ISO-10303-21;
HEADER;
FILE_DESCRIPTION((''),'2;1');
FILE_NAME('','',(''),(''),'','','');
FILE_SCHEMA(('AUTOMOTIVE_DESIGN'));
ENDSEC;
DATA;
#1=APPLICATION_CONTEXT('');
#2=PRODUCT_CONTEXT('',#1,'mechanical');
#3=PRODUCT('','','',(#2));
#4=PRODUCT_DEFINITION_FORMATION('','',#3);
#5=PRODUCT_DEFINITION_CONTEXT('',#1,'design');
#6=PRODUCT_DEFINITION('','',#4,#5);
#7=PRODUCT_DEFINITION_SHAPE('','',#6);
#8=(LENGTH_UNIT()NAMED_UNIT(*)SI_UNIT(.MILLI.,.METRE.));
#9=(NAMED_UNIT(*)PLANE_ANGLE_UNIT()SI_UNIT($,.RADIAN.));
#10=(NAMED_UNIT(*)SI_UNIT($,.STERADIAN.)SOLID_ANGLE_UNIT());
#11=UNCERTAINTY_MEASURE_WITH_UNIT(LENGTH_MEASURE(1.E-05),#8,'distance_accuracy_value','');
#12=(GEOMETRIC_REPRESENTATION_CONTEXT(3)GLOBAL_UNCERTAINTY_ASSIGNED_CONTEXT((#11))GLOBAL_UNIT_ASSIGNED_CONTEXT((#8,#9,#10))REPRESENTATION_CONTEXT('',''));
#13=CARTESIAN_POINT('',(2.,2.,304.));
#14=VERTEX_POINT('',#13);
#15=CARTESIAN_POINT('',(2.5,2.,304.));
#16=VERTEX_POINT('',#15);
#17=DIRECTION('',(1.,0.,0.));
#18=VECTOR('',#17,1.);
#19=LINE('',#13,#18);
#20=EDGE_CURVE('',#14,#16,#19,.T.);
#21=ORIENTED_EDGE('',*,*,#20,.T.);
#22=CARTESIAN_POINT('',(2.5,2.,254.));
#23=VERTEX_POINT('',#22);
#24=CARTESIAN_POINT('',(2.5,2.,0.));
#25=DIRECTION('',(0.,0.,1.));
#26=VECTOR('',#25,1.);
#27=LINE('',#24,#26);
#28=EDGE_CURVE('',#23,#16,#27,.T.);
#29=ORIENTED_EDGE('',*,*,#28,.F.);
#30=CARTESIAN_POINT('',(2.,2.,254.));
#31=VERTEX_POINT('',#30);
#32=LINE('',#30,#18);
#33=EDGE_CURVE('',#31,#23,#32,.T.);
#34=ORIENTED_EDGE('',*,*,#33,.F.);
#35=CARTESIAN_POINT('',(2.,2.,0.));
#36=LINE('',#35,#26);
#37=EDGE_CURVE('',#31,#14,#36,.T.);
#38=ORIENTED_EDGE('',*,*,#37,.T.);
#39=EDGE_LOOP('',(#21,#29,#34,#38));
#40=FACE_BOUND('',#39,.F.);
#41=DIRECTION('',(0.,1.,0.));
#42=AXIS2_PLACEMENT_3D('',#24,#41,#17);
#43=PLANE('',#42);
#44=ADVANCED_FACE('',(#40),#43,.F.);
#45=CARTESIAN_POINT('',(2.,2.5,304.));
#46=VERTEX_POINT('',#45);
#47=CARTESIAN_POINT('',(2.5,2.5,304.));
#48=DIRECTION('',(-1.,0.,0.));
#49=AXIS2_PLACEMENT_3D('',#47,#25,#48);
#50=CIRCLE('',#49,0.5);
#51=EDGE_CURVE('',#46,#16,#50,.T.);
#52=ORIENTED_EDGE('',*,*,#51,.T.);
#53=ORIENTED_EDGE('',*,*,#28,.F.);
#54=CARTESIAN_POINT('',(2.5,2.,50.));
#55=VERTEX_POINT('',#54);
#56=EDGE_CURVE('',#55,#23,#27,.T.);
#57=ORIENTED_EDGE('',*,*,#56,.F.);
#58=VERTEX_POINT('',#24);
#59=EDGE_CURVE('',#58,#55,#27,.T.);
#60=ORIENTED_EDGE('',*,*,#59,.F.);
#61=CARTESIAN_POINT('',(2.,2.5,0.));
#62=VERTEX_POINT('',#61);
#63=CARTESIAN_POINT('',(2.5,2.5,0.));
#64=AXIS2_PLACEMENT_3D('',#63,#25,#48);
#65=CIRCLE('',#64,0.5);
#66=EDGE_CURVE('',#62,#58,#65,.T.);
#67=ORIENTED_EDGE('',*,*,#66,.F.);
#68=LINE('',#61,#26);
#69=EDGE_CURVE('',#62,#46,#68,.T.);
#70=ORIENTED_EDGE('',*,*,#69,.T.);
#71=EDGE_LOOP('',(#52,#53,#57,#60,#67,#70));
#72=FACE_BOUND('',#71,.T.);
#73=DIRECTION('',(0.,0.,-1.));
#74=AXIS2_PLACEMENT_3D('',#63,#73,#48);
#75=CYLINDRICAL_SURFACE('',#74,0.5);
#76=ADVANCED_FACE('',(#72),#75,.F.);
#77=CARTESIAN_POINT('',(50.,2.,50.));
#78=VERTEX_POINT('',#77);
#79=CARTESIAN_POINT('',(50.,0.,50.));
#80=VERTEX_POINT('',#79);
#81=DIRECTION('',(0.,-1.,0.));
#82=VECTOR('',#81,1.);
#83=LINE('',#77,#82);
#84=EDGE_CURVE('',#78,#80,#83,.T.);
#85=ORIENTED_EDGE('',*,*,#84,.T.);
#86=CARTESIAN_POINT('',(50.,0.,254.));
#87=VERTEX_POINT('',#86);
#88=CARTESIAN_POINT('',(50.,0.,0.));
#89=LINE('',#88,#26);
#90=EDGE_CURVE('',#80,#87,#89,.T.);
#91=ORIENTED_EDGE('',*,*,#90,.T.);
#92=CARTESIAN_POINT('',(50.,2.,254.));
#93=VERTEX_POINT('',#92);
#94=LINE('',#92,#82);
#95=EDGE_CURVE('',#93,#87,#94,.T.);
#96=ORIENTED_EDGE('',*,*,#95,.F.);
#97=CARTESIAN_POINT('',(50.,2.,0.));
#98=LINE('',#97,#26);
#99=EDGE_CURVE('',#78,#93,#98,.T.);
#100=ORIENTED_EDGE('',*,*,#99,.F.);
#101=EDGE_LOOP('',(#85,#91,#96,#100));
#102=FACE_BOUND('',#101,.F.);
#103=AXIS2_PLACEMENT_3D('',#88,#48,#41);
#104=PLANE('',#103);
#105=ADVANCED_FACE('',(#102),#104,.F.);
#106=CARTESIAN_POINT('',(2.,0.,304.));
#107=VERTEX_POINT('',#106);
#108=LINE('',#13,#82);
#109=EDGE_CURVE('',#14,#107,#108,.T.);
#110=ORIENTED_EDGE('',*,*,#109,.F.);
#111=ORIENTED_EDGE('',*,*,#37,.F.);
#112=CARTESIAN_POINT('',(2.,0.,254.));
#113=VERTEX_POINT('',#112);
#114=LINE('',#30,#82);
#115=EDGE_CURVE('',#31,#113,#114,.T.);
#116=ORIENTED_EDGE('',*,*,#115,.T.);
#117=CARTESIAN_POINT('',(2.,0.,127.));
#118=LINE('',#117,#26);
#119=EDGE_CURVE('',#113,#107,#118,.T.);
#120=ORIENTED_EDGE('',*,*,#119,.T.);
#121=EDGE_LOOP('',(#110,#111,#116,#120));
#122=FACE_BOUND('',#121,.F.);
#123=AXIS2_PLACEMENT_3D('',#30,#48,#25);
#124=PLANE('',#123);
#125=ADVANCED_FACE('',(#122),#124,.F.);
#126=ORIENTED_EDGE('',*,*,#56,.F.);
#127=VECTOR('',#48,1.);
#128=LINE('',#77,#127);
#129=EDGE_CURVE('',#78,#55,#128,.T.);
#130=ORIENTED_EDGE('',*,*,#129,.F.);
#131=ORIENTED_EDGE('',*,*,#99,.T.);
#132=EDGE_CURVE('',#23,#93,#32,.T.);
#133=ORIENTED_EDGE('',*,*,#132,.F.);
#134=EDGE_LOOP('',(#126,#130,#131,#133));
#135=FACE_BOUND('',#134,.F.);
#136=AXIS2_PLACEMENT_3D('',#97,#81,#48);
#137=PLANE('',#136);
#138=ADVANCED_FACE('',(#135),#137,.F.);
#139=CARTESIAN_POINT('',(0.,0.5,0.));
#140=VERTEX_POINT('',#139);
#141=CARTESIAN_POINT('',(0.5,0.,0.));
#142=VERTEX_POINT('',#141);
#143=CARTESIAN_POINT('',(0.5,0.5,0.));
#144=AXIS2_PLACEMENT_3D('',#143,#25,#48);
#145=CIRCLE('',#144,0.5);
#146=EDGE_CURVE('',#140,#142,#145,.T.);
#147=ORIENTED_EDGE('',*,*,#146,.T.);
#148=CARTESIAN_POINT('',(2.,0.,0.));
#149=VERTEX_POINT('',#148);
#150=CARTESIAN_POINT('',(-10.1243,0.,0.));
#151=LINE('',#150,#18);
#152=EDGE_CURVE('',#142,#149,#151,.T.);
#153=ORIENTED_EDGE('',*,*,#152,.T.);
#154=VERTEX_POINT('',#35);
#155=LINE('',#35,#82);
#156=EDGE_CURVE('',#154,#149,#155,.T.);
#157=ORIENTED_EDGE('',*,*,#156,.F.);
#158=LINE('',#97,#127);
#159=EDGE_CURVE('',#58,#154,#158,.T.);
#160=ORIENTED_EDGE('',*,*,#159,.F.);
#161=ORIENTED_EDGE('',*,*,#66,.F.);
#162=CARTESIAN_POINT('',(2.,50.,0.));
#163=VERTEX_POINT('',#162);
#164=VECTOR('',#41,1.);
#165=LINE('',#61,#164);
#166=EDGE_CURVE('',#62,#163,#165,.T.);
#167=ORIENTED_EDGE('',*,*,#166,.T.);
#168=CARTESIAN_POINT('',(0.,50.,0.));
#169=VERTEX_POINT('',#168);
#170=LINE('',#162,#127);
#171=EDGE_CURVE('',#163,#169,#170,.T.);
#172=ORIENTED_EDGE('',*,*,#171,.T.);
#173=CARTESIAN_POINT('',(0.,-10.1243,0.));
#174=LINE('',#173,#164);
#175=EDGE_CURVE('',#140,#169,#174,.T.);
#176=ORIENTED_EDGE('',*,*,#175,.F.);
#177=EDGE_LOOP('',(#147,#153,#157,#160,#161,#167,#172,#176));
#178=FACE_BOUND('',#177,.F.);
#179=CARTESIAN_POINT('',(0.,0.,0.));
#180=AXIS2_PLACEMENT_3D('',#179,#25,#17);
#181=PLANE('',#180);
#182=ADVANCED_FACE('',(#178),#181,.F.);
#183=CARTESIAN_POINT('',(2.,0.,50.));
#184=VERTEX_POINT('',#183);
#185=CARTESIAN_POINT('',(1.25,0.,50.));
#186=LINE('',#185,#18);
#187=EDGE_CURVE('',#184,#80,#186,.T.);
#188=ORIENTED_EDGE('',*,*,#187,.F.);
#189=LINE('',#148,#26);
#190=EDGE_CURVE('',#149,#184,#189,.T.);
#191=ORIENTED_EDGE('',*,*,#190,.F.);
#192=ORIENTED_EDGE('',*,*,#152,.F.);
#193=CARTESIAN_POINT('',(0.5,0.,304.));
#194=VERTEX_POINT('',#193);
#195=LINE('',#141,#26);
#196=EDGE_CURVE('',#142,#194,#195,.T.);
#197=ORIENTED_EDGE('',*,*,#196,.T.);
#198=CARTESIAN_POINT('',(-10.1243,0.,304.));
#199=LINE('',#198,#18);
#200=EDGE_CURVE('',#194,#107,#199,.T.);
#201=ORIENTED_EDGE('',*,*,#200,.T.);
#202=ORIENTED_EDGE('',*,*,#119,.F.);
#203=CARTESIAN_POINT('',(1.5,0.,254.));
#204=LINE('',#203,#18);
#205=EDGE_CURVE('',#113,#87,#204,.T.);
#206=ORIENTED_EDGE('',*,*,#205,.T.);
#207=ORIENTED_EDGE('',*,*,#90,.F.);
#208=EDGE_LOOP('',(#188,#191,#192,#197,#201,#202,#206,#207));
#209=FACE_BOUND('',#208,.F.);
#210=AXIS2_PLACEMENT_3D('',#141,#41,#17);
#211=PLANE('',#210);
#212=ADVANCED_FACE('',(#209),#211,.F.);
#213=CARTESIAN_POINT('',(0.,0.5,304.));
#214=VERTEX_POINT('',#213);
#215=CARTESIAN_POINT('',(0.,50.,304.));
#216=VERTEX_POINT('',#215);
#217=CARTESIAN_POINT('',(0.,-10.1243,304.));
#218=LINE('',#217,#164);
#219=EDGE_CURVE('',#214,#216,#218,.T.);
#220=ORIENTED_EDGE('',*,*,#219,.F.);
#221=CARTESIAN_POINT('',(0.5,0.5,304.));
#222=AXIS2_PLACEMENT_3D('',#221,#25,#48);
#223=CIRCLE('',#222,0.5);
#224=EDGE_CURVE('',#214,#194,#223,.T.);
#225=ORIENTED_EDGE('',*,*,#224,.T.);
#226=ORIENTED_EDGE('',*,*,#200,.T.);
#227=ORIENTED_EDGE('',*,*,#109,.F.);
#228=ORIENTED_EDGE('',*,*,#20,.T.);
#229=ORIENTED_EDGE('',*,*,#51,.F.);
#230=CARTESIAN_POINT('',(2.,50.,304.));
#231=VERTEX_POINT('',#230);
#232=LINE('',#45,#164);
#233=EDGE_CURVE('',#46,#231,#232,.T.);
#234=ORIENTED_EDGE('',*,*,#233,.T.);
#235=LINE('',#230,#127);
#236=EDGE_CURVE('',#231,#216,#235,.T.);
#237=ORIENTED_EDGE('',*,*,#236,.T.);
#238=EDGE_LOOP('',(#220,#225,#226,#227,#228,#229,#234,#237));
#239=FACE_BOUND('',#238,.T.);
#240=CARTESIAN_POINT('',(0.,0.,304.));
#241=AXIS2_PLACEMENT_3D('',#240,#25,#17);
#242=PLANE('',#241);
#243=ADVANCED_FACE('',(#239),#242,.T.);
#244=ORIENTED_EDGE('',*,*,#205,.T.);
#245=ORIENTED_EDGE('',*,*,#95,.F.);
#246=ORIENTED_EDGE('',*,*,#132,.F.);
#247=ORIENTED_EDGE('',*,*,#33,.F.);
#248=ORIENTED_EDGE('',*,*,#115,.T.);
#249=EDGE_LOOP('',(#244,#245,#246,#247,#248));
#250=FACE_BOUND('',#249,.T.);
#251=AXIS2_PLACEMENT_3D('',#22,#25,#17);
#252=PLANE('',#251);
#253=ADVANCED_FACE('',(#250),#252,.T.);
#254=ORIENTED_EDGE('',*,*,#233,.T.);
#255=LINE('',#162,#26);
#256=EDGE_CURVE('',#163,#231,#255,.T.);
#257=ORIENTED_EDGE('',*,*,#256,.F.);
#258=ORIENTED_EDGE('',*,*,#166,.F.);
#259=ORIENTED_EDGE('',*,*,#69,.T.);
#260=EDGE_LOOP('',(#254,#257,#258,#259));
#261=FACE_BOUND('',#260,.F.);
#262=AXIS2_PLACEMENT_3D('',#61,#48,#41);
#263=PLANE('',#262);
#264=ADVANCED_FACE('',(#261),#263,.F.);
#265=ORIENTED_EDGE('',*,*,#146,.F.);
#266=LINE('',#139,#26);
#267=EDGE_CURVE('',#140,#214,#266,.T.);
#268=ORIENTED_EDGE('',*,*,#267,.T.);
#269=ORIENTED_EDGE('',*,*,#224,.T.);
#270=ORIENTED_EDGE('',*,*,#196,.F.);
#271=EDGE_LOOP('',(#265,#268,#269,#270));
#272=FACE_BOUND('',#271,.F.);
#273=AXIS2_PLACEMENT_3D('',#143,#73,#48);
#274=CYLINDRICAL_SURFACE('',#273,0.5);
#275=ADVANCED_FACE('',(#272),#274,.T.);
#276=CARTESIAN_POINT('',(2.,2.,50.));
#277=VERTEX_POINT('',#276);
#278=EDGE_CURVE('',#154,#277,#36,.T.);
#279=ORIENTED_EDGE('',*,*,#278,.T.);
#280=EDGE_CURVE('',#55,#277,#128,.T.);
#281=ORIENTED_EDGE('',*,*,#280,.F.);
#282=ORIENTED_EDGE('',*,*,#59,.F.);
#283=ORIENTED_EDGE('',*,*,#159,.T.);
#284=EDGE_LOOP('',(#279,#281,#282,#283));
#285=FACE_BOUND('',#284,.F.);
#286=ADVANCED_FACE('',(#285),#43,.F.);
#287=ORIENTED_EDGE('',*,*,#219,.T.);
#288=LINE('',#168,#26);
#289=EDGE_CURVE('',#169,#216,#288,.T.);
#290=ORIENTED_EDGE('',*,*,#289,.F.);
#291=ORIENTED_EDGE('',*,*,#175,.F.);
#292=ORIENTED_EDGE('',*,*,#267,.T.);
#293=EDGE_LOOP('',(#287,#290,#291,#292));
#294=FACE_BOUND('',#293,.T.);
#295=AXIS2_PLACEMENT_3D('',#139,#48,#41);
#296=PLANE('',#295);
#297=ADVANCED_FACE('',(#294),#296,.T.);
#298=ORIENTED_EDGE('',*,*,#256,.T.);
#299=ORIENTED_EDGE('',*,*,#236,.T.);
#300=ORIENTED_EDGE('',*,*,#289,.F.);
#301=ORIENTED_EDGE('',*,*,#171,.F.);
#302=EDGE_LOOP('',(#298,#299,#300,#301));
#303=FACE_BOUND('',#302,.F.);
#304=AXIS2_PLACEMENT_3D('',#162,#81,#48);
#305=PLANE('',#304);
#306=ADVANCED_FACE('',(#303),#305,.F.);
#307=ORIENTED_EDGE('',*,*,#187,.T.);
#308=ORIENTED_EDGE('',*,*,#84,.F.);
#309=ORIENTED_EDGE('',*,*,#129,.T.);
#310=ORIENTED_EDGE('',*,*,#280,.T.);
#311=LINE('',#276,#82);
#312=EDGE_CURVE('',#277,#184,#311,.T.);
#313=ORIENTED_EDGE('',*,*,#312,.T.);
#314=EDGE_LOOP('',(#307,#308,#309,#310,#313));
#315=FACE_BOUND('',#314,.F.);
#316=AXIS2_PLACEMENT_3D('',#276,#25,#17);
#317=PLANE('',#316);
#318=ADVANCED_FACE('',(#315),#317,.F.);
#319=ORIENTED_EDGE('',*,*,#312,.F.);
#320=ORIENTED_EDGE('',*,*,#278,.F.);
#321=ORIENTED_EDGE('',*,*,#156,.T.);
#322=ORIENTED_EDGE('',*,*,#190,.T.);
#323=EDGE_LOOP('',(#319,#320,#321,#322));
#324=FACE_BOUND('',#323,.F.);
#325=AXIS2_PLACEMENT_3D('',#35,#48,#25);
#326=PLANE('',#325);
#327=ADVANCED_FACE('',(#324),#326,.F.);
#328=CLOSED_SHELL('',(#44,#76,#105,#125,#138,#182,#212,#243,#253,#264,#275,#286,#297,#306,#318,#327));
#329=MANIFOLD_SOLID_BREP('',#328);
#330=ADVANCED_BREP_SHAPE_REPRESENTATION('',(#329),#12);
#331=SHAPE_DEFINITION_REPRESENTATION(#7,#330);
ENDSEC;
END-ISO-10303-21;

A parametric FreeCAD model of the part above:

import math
import FreeCAD as App
import Part
import Sketcher

doc = App.newDocument("Part")
body = doc.addObject("PartDesign::Body", "Body")

# Sketch on XY plane
sketch1 = doc.addObject("Sketcher::SketchObject", "Sketch")
body.addObject(sketch1)
sketch1.AttachmentSupport = (doc.XY_Plane, [""])
sketch1.MapMode = "FlatFace"
sketch1.addGeometry(Part.ArcOfCircle(Part.Circle(App.Vector(0.5, 0.5, 0), App.Vector(0, 0, 1), 0.5), math.radians(180), math.radians(270)), False)
sketch1.addGeometry(Part.LineSegment(App.Vector(0.5, 0, 0), App.Vector(50, 0, 0)), False)
sketch1.addGeometry(Part.LineSegment(App.Vector(50, 0, 0), App.Vector(50, 2, 0)), False)
sketch1.addGeometry(Part.LineSegment(App.Vector(50, 2, 0), App.Vector(2.5, 2, 0)), False)
sketch1.addGeometry(Part.ArcOfCircle(Part.Circle(App.Vector(2.5, 2.5, 0), App.Vector(0, 0, 1), 0.5), math.radians(180), math.radians(270)), False)
sketch1.addGeometry(Part.LineSegment(App.Vector(2, 2.5, 0), App.Vector(2, 50, 0)), False)
sketch1.addGeometry(Part.LineSegment(App.Vector(2, 50, 0), App.Vector(0, 50, 0)), False)
sketch1.addGeometry(Part.LineSegment(App.Vector(0, 50, 0), App.Vector(0, 0.5, 0)), False)
sketch1.addConstraint(Sketcher.Constraint("Tangent", 0, 2, 1, 1))
sketch1.addConstraint(Sketcher.Constraint("Coincident", 1, 2, 2, 1))
sketch1.addConstraint(Sketcher.Constraint("Coincident", 2, 2, 3, 1))
sketch1.addConstraint(Sketcher.Constraint("Tangent", 3, 2, 4, 2))
sketch1.addConstraint(Sketcher.Constraint("Tangent", 4, 1, 5, 1))
sketch1.addConstraint(Sketcher.Constraint("Coincident", 5, 2, 6, 1))
sketch1.addConstraint(Sketcher.Constraint("Coincident", 6, 2, 7, 1))
sketch1.addConstraint(Sketcher.Constraint("Tangent", 7, 2, 0, 1))
sketch1.addConstraint(Sketcher.Constraint("Horizontal", 1))
sketch1.addConstraint(Sketcher.Constraint("Vertical", 2))
sketch1.addConstraint(Sketcher.Constraint("Horizontal", 3))
sketch1.addConstraint(Sketcher.Constraint("Vertical", 5))
sketch1.addConstraint(Sketcher.Constraint("Horizontal", 6))
sketch1.addConstraint(Sketcher.Constraint("Vertical", 7))
sketch1.addConstraint(Sketcher.Constraint("Equal", 0, 4))
sketch1.addConstraint(Sketcher.Constraint("PointOnObject", 0, 2, -1))
sketch1.addConstraint(Sketcher.Constraint("PointOnObject", 6, 2, -2))
sketch1.addConstraint(Sketcher.Constraint("Equal", 6, 2))
sketch1.addConstraint(Sketcher.Constraint("Equal", 3, 5))
sketch1.addConstraint(Sketcher.Constraint("Radius", 0, 0.5))
sketch1.addConstraint(Sketcher.Constraint("DistanceX", 6, 2, 6, 1, 2.0))
sketch1.addConstraint(Sketcher.Constraint("DistanceX", -1, 1, 1, 2, 50.0))
pad1 = doc.addObject("PartDesign::Pad", "Pad")
body.addObject(pad1)
pad1.Profile = sketch1
pad1.Length = 304

# Sketch on XZ plane
sketch2 = doc.addObject("Sketcher::SketchObject", "Sketch001")
body.addObject(sketch2)
sketch2.AttachmentSupport = (doc.XZ_Plane, [""])
sketch2.MapMode = "FlatFace"
sketch2.AttachmentOffset = App.Placement(App.Vector(0, 0, -2), App.Rotation())
sketch2.addGeometry(Part.LineSegment(App.Vector(2, 50, 0), App.Vector(50, 50, 0)), False)
sketch2.addGeometry(Part.LineSegment(App.Vector(50, 50, 0), App.Vector(50, 0, 0)), False)
sketch2.addGeometry(Part.LineSegment(App.Vector(50, 0, 0), App.Vector(2, 0, 0)), False)
sketch2.addGeometry(Part.LineSegment(App.Vector(2, 0, 0), App.Vector(2, 50, 0)), False)
sketch2.addGeometry(Part.LineSegment(App.Vector(50, 254, 0), App.Vector(2, 254, 0)), False)
sketch2.addGeometry(Part.LineSegment(App.Vector(2, 254, 0), App.Vector(2, 304, 0)), False)
sketch2.addGeometry(Part.LineSegment(App.Vector(2, 304, 0), App.Vector(50, 304, 0)), False)
sketch2.addGeometry(Part.LineSegment(App.Vector(50, 304, 0), App.Vector(50, 254, 0)), False)
sketch2.addConstraint(Sketcher.Constraint("Coincident", 0, 2, 1, 1))
sketch2.addConstraint(Sketcher.Constraint("Coincident", 1, 2, 2, 1))
sketch2.addConstraint(Sketcher.Constraint("Coincident", 2, 2, 3, 1))
sketch2.addConstraint(Sketcher.Constraint("Coincident", 3, 2, 0, 1))
sketch2.addConstraint(Sketcher.Constraint("Coincident", 4, 2, 5, 1))
sketch2.addConstraint(Sketcher.Constraint("Coincident", 5, 2, 6, 1))
sketch2.addConstraint(Sketcher.Constraint("Coincident", 6, 2, 7, 1))
sketch2.addConstraint(Sketcher.Constraint("Coincident", 7, 2, 4, 1))
sketch2.addConstraint(Sketcher.Constraint("Horizontal", 0))
sketch2.addConstraint(Sketcher.Constraint("Vertical", 1))
sketch2.addConstraint(Sketcher.Constraint("Horizontal", 2))
sketch2.addConstraint(Sketcher.Constraint("Vertical", 3))
sketch2.addConstraint(Sketcher.Constraint("Horizontal", 4))
sketch2.addConstraint(Sketcher.Constraint("Vertical", 5))
sketch2.addConstraint(Sketcher.Constraint("Horizontal", 6))
sketch2.addConstraint(Sketcher.Constraint("Vertical", 7))
sketch2.addConstraint(Sketcher.Constraint("PointOnObject", 1, 2, -1))
sketch2.addConstraint(Sketcher.Constraint("Vertical", 3, 2, 4, 2))
sketch2.addConstraint(Sketcher.Constraint("Vertical", 1, 2, 6, 2))
sketch2.addConstraint(Sketcher.Constraint("Equal", 3, 5))
sketch2.addConstraint(Sketcher.Constraint("DistanceY", 1, 2, 1, 1, 50.0))
sketch2.addConstraint(Sketcher.Constraint("DistanceX", -1, 1, 0, 2, 50.0))
sketch2.addConstraint(Sketcher.Constraint("DistanceX", 0, 1, 0, 2, 48.0))
sketch2.addConstraint(Sketcher.Constraint("DistanceY", -1, 1, 4, 2, 254.0))
pocket1 = doc.addObject("PartDesign::Pocket", "Pocket")
body.addObject(pocket1)
pocket1.Profile = sketch2
pocket1.Type = "ThroughAll"
pocket1.Reversed = True

doc.recompute()
